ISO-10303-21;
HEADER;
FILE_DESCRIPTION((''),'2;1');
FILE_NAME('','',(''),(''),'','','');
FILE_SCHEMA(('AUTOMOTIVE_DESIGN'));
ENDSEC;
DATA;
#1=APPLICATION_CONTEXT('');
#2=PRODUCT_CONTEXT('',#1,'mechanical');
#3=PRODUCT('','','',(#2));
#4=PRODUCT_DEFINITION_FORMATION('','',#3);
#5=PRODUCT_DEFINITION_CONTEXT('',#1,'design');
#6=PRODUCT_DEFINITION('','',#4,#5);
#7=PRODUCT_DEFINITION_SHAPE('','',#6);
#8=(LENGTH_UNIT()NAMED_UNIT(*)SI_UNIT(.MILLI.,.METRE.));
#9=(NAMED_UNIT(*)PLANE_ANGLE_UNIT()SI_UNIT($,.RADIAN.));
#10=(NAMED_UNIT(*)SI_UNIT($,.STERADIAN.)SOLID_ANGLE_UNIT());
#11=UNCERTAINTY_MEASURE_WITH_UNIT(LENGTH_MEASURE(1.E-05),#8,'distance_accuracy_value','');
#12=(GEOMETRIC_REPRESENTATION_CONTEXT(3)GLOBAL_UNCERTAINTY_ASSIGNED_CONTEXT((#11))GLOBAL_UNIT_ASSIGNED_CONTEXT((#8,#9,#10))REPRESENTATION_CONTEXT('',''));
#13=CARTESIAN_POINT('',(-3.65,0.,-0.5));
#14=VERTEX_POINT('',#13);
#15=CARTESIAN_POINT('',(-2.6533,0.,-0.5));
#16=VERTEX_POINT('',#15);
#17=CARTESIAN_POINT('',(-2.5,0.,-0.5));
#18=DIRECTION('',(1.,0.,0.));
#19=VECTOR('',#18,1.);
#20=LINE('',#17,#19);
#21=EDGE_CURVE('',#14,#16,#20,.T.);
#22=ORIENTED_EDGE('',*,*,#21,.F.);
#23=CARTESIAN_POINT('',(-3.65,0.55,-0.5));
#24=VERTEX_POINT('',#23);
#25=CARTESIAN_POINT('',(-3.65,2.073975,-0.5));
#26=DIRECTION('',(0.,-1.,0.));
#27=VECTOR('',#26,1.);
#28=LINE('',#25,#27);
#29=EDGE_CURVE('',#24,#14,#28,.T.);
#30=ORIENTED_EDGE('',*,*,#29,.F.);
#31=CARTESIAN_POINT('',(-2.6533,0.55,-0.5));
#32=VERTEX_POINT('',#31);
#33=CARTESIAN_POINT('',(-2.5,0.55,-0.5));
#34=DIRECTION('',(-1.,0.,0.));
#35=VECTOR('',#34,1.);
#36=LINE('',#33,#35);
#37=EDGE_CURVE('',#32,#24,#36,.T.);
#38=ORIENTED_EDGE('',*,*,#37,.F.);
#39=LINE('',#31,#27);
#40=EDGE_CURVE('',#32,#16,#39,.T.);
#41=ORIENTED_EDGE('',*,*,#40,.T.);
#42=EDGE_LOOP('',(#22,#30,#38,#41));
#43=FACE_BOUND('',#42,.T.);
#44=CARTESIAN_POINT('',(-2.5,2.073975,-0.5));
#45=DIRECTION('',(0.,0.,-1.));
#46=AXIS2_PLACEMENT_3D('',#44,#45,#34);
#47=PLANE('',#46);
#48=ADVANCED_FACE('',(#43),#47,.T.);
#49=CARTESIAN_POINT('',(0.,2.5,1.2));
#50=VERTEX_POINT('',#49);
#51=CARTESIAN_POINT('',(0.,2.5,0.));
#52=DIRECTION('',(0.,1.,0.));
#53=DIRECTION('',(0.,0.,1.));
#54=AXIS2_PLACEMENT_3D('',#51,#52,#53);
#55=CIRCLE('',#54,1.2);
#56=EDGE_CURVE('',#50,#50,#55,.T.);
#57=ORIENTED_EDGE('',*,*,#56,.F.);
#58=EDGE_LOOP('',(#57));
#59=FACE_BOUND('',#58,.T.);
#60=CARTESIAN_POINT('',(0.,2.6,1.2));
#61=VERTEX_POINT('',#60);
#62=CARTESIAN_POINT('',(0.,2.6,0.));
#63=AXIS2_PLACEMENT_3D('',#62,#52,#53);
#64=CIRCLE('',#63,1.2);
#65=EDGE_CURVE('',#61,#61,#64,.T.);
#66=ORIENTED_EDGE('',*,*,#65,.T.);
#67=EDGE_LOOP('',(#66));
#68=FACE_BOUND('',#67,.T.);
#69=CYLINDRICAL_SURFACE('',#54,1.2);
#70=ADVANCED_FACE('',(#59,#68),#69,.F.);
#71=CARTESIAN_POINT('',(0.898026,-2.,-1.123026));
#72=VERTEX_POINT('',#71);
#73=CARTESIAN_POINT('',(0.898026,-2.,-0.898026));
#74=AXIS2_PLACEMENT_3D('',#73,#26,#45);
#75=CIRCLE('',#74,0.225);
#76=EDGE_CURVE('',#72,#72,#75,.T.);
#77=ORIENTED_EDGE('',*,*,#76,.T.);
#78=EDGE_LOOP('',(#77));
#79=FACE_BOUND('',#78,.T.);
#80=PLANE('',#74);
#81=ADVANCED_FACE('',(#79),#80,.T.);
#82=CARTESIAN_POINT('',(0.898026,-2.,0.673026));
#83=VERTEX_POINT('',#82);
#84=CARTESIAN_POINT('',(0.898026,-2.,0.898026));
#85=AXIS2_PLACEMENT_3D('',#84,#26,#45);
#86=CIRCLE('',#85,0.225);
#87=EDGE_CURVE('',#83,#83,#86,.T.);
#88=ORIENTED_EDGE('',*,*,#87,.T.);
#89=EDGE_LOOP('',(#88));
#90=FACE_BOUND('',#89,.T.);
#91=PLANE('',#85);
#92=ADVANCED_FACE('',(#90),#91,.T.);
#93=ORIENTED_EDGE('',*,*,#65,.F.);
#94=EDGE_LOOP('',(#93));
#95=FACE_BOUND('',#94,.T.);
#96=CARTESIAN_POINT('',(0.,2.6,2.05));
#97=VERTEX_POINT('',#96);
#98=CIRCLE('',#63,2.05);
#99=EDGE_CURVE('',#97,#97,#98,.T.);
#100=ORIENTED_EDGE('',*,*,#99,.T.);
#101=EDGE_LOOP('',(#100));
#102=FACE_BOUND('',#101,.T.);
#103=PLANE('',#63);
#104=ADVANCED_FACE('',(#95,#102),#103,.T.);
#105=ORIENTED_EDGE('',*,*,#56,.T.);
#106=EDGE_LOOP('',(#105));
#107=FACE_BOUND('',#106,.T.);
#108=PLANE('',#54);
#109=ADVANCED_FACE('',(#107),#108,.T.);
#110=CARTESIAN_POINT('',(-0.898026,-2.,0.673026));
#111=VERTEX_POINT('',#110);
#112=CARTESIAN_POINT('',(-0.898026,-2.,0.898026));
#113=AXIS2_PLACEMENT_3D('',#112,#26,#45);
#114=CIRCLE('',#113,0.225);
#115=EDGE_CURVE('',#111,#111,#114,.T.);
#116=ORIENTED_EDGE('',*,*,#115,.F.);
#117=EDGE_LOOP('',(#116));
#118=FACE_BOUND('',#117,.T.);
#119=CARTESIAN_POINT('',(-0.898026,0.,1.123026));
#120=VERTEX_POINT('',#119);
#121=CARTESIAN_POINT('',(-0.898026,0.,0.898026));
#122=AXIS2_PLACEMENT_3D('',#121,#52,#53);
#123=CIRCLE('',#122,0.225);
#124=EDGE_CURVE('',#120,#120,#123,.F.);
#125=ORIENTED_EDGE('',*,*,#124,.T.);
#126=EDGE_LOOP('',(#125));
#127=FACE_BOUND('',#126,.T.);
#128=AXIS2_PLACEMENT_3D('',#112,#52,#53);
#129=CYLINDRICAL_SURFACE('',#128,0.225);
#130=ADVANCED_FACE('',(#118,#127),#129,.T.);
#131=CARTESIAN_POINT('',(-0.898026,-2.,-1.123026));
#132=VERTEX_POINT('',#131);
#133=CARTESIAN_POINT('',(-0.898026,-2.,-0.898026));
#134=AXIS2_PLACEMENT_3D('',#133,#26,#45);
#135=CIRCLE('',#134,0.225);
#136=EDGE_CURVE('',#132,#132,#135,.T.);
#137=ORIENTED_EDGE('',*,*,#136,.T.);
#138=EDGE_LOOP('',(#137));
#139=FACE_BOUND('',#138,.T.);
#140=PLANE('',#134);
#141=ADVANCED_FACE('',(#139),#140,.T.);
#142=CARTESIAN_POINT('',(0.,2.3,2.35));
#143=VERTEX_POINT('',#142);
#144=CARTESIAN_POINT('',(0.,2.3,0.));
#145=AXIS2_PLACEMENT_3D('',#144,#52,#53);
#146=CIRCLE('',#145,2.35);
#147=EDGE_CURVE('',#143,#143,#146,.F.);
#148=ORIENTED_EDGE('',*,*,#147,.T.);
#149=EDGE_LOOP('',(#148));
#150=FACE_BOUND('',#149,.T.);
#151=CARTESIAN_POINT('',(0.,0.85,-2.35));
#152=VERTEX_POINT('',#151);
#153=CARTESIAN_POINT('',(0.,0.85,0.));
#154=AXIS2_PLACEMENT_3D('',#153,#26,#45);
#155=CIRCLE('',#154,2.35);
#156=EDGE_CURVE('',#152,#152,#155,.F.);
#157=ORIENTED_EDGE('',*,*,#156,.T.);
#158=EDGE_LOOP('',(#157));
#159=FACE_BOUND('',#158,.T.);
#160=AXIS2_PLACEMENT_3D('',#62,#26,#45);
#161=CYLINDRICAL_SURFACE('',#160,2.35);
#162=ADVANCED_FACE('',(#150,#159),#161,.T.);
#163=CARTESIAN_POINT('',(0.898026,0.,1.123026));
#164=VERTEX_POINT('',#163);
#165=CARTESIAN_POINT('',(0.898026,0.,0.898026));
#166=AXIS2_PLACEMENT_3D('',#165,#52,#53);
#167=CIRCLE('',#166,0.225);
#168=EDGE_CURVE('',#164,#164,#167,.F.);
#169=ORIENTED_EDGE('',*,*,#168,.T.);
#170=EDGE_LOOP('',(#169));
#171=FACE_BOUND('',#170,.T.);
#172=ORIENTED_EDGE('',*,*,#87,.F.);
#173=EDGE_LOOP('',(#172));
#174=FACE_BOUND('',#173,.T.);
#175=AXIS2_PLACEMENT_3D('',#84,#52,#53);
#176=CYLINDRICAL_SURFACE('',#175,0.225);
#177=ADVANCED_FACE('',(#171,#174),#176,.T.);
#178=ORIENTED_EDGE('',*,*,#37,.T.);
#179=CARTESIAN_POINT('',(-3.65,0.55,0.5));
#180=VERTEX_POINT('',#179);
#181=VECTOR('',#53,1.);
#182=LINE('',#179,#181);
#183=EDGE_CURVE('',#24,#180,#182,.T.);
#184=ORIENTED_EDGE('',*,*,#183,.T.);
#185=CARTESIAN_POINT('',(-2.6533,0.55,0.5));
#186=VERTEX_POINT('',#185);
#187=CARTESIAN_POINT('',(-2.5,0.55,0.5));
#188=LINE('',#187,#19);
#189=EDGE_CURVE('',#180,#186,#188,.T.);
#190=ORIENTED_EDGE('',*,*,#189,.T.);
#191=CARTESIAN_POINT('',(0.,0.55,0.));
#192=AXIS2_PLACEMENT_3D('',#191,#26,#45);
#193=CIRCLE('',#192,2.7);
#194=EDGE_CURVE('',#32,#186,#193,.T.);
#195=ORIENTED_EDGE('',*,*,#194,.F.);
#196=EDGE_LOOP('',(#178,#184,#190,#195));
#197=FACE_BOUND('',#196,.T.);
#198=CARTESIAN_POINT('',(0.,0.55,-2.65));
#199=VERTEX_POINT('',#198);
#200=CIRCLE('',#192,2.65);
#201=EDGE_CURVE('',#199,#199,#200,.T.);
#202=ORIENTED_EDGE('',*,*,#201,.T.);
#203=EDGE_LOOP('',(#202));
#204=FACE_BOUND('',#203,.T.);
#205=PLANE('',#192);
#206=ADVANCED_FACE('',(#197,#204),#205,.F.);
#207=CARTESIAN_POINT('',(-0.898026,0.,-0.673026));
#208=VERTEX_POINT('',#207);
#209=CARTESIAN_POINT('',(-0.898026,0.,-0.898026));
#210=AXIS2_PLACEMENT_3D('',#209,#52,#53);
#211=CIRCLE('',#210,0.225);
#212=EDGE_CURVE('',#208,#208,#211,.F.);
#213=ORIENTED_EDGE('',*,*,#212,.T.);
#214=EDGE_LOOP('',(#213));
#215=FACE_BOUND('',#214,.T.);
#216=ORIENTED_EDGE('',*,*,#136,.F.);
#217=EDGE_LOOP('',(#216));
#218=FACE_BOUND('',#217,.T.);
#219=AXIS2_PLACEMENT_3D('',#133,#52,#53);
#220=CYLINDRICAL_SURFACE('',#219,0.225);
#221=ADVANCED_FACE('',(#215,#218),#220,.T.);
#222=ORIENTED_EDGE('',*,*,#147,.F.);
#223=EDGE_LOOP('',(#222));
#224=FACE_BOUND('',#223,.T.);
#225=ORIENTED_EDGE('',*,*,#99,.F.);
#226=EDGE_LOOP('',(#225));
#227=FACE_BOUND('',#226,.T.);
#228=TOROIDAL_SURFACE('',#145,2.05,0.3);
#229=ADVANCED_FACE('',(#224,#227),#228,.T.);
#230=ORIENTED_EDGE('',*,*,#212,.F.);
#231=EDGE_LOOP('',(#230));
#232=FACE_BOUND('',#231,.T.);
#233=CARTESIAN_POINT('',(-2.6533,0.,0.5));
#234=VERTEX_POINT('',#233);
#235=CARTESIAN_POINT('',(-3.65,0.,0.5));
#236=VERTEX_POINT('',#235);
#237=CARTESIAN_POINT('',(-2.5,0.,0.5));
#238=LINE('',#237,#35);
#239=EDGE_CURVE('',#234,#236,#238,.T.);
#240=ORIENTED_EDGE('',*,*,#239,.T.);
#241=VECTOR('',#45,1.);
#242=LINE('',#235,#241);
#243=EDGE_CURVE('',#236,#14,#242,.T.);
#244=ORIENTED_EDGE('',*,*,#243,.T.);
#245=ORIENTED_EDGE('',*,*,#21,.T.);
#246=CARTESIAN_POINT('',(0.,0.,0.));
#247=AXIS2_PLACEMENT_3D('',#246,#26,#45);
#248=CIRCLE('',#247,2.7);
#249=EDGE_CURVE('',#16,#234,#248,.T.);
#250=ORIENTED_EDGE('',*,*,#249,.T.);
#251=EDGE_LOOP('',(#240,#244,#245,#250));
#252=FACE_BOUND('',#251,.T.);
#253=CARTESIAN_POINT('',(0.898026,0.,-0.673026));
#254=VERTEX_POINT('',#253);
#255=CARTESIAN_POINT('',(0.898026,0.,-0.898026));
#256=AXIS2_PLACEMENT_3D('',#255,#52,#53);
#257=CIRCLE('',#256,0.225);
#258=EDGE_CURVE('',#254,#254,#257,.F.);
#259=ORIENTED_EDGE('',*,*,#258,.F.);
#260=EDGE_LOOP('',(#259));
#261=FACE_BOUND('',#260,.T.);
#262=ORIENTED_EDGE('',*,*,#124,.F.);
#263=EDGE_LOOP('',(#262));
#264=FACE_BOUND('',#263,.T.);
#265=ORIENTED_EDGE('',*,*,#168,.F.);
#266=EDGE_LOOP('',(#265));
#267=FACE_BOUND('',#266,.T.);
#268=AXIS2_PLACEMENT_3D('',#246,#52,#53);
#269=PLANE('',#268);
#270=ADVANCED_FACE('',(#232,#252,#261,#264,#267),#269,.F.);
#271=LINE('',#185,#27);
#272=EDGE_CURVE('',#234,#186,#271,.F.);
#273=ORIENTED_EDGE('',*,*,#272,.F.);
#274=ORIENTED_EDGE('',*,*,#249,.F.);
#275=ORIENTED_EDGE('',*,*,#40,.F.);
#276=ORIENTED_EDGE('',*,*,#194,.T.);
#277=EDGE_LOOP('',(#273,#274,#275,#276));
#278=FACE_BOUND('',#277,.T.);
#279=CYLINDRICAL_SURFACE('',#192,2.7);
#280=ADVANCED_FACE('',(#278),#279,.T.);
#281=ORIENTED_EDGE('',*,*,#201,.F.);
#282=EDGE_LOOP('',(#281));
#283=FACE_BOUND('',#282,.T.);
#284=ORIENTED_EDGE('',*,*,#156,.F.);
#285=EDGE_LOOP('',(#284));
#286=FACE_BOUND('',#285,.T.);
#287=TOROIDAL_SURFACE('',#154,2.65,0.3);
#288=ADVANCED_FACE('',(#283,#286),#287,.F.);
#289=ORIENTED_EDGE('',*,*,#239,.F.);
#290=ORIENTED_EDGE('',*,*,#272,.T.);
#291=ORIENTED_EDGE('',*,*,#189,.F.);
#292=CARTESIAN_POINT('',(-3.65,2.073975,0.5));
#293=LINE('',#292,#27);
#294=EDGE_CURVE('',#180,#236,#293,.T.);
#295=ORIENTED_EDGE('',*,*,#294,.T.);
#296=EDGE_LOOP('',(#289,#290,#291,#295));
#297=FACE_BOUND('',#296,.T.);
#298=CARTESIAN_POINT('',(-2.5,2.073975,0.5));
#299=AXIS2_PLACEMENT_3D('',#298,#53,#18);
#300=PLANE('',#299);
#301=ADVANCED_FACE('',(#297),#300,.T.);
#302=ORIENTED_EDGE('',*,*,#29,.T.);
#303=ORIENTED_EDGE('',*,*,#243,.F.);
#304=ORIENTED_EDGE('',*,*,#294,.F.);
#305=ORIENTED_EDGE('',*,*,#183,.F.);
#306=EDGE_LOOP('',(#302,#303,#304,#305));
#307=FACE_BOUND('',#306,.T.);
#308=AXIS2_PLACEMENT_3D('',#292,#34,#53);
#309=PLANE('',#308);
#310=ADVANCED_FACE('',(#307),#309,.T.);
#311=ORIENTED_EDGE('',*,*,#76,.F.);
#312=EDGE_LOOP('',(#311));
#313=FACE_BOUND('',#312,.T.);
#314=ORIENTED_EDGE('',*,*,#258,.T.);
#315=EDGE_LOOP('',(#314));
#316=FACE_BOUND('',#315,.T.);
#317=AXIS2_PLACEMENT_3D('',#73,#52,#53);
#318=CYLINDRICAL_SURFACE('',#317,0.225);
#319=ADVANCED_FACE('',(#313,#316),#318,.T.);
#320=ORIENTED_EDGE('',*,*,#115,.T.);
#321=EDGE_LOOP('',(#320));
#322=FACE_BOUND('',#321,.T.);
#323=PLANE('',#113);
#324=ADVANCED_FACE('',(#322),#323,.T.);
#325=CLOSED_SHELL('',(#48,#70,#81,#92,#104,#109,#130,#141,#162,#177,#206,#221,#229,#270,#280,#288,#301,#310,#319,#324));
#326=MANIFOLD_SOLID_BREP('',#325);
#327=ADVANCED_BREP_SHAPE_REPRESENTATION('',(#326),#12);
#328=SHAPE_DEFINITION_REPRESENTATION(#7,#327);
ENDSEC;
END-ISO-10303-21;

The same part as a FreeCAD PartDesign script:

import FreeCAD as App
import Part
import Sketcher
from FreeCAD import Vector


def edges_at(feature, points):
    """Names of the edges that pass closest to the given points."""
    edges = feature.Shape.Edges
    near = lambda p: min(range(len(edges)), key=lambda i: edges[i].distToShape(Part.Vertex(*p))[0])
    return sorted({f"Edge{near(p) + 1}" for p in points})


def add_polygon(sketch, points):
    """Adds a closed chain of lines whose ends are joined by coincident constraints."""
    first, n = sketch.GeometryCount, len(points)
    for a, b in zip(points, points[1:] + points[:1]):
        sketch.addGeometry(Part.LineSegment(App.Vector(*a, 0), App.Vector(*b, 0)), False)
    for i in range(n):
        sketch.addConstraint(Sketcher.Constraint("Coincident", first + i, 2, first + (i + 1) % n, 1))

doc = App.newDocument("Part")
params = doc.addObject("Spreadsheet::Sheet", "Params")
for row, (alias, value) in enumerate([
    ("sketch1_diameter", "4.7 mm"),
    ("pad1_length", "2.6 mm"),
    ("sketch2_diameter", "5.4 mm"),
    ("pad2_length", "0.55 mm"),
    ("fillet_radius", "0.3 mm"),
    ("fillet2_radius", "0.3 mm"),
    ("sketch3_diameter", "2.4 mm"),
    ("pocket1_length", "0.1 mm"),
    ("sketch4_height", "1 mm"),
    ("sketch4_width", "1.15 mm"),
    ("pad3_length", "0.55 mm"),
    ("sketch5_diameter", "0.45 mm"),
    ("pad4_length", "2 mm"),
], start=1):
    params.set(f"A{row}", alias)
    params.set(f"B{row}", "=" + value)
    params.setAlias(f"B{row}", alias)

body = doc.addObject("PartDesign::Body", "Body")

sketch1 = body.newObject("Sketcher::SketchObject", "Sketch")
sketch1.AttachmentSupport = (doc.getObject("XZ_Plane"), [""])
sketch1.MapMode = "FlatFace"
sketch1.addGeometry(Part.Circle(Vector(0, 0, 0), Vector(0, 0, 1), 2.4), False)
sketch1.addConstraint(Sketcher.Constraint("Coincident", 0, 3, -1, 1))
sketch1.addConstraint(Sketcher.Constraint("Diameter", 0, 4.7))
sketch1.setExpression("Constraints[1]", "Params.sketch1_diameter")
pad1 = body.newObject("PartDesign::Pad", "Pad")
pad1.Profile = sketch1
pad1.setExpression("Length", "Params.pad1_length")
pad1.Reversed = True

sketch2 = body.newObject("Sketcher::SketchObject", "Sketch001")
sketch2.AttachmentSupport = (doc.getObject("XZ_Plane"), [""])
sketch2.MapMode = "FlatFace"
sketch2.addGeometry(Part.Circle(Vector(0, 0, 0), Vector(0, 0, 1), 2.7), False)
sketch2.addConstraint(Sketcher.Constraint("Coincident", 0, 3, -1, 1))
sketch2.addConstraint(Sketcher.Constraint("Diameter", 0, 5.4))
sketch2.setExpression("Constraints[1]", "Params.sketch2_diameter")
pad2 = body.newObject("PartDesign::Pad", "Pad001")
pad2.Profile = sketch2
pad2.setExpression("Length", "Params.pad2_length")
pad2.Reversed = True
doc.recompute()

fillet = body.newObject("PartDesign::Fillet", "Fillet")
fillet.Base = (pad2, edges_at(pad2, [(0, 0.55, -2.35)]))
fillet.setExpression("Radius", "Params.fillet_radius")
doc.recompute()

fillet2 = body.newObject("PartDesign::Fillet", "Fillet001")
fillet2.Base = (fillet, edges_at(fillet, [(0, 2.6, -2.35)]))
fillet2.setExpression("Radius", "Params.fillet2_radius")

sketch3 = body.newObject("Sketcher::SketchObject", "Sketch002")
sketch3.AttachmentSupport = (doc.getObject("XZ_Plane"), [""])
sketch3.MapMode = "FlatFace"
sketch3.AttachmentOffset = App.Placement(Vector(0, 0, -2.6), App.Rotation())
sketch3.addGeometry(Part.Circle(Vector(0, 0, 0), Vector(0, 0, 1), 1.2), False)
sketch3.addConstraint(Sketcher.Constraint("Coincident", 0, 3, -1, 1))
sketch3.addConstraint(Sketcher.Constraint("Diameter", 0, 2.4))
sketch3.setExpression("Constraints[1]", "Params.sketch3_diameter")
pocket1 = body.newObject("PartDesign::Pocket", "Pocket")
pocket1.Profile = sketch3
pocket1.setExpression("Length", "Params.pocket1_length")
pocket1.Reversed = True

sketch4 = body.newObject("Sketcher::SketchObject", "Sketch003")
sketch4.AttachmentSupport = (doc.getObject("XZ_Plane"), [""])
sketch4.MapMode = "FlatFace"
add_polygon(sketch4, [(-3.6, 0.5), (-3.6, -0.5), (-2.5, -0.5), (-2.5, 0.5)])
sketch4.addConstraint(Sketcher.Constraint("Vertical", 0))
sketch4.addConstraint(Sketcher.Constraint("Horizontal", 1))
sketch4.addConstraint(Sketcher.Constraint("Vertical", 2))
sketch4.addConstraint(Sketcher.Constraint("Horizontal", 3))
sketch4.addConstraint(Sketcher.Constraint("DistanceY", 0, 2, 0, 1, 1.0))
sketch4.addConstraint(Sketcher.Constraint("DistanceX", 1, 1, 1, 2, 1.15))
sketch4.addConstraint(Sketcher.Constraint("DistanceY", 0, 2, -1, 1, 0.5))
sketch4.addConstraint(Sketcher.Constraint("DistanceX", 1, 2, -1, 1, 2.5))
sketch4.setExpression("Constraints[8]", "Params.sketch4_height")
sketch4.setExpression("Constraints[9]", "Params.sketch4_width")
pad3 = body.newObject("PartDesign::Pad", "Pad002")
pad3.Profile = sketch4
pad3.setExpression("Length", "Params.pad3_length")
pad3.Reversed = True

sketch5 = body.newObject("Sketcher::SketchObject", "Sketch004")
sketch5.AttachmentSupport = (doc.getObject("XZ_Plane"), [""])
sketch5.MapMode = "FlatFace"
sketch5.addGeometry(Part.Circle(Vector(-0.9, 0.9, 0), Vector(0, 0, 1), 0.23), False)
sketch5.addGeometry(Part.Circle(Vector(0.9, 0.9, 0), Vector(0, 0, 1), 0.23), False)
sketch5.addGeometry(Part.Circle(Vector(-0.9, -0.9, 0), Vector(0, 0, 1), 0.23), False)
sketch5.addGeometry(Part.Circle(Vector(0.9, -0.9, 0), Vector(0, 0, 1), 0.23), False)
sketch5.addConstraint(Sketcher.Constraint("Equal", 0, 1))
sketch5.addConstraint(Sketcher.Constraint("Equal", 1, 2))
sketch5.addConstraint(Sketcher.Constraint("Equal", 2, 3))
sketch5.addConstraint(Sketcher.Constraint("Symmetric", 1, 3, 2, 3, -1, 1))
sketch5.addConstraint(Sketcher.Constraint("Symmetric", 0, 3, 3, 3, -1, 1))
sketch5.addConstraint(Sketcher.Constraint("Symmetric", 0, 3, 1, 3, -2))
sketch5.addConstraint(Sketcher.Constraint("Diameter", 0, 0.45))
sketch5.addConstraint(Sketcher.Constraint("DistanceX", 0, 3, 1, 3, 1.796051))
sketch5.addConstraint(Sketcher.Constraint("DistanceY", 2, 3, 0, 3, 1.796051))
sketch5.setExpression("Constraints[6]", "Params.sketch5_diameter")
pad4 = body.newObject("PartDesign::Pad", "Pad003")
pad4.Profile = sketch5
pad4.setExpression("Length", "Params.pad4_length")

doc.recompute()
